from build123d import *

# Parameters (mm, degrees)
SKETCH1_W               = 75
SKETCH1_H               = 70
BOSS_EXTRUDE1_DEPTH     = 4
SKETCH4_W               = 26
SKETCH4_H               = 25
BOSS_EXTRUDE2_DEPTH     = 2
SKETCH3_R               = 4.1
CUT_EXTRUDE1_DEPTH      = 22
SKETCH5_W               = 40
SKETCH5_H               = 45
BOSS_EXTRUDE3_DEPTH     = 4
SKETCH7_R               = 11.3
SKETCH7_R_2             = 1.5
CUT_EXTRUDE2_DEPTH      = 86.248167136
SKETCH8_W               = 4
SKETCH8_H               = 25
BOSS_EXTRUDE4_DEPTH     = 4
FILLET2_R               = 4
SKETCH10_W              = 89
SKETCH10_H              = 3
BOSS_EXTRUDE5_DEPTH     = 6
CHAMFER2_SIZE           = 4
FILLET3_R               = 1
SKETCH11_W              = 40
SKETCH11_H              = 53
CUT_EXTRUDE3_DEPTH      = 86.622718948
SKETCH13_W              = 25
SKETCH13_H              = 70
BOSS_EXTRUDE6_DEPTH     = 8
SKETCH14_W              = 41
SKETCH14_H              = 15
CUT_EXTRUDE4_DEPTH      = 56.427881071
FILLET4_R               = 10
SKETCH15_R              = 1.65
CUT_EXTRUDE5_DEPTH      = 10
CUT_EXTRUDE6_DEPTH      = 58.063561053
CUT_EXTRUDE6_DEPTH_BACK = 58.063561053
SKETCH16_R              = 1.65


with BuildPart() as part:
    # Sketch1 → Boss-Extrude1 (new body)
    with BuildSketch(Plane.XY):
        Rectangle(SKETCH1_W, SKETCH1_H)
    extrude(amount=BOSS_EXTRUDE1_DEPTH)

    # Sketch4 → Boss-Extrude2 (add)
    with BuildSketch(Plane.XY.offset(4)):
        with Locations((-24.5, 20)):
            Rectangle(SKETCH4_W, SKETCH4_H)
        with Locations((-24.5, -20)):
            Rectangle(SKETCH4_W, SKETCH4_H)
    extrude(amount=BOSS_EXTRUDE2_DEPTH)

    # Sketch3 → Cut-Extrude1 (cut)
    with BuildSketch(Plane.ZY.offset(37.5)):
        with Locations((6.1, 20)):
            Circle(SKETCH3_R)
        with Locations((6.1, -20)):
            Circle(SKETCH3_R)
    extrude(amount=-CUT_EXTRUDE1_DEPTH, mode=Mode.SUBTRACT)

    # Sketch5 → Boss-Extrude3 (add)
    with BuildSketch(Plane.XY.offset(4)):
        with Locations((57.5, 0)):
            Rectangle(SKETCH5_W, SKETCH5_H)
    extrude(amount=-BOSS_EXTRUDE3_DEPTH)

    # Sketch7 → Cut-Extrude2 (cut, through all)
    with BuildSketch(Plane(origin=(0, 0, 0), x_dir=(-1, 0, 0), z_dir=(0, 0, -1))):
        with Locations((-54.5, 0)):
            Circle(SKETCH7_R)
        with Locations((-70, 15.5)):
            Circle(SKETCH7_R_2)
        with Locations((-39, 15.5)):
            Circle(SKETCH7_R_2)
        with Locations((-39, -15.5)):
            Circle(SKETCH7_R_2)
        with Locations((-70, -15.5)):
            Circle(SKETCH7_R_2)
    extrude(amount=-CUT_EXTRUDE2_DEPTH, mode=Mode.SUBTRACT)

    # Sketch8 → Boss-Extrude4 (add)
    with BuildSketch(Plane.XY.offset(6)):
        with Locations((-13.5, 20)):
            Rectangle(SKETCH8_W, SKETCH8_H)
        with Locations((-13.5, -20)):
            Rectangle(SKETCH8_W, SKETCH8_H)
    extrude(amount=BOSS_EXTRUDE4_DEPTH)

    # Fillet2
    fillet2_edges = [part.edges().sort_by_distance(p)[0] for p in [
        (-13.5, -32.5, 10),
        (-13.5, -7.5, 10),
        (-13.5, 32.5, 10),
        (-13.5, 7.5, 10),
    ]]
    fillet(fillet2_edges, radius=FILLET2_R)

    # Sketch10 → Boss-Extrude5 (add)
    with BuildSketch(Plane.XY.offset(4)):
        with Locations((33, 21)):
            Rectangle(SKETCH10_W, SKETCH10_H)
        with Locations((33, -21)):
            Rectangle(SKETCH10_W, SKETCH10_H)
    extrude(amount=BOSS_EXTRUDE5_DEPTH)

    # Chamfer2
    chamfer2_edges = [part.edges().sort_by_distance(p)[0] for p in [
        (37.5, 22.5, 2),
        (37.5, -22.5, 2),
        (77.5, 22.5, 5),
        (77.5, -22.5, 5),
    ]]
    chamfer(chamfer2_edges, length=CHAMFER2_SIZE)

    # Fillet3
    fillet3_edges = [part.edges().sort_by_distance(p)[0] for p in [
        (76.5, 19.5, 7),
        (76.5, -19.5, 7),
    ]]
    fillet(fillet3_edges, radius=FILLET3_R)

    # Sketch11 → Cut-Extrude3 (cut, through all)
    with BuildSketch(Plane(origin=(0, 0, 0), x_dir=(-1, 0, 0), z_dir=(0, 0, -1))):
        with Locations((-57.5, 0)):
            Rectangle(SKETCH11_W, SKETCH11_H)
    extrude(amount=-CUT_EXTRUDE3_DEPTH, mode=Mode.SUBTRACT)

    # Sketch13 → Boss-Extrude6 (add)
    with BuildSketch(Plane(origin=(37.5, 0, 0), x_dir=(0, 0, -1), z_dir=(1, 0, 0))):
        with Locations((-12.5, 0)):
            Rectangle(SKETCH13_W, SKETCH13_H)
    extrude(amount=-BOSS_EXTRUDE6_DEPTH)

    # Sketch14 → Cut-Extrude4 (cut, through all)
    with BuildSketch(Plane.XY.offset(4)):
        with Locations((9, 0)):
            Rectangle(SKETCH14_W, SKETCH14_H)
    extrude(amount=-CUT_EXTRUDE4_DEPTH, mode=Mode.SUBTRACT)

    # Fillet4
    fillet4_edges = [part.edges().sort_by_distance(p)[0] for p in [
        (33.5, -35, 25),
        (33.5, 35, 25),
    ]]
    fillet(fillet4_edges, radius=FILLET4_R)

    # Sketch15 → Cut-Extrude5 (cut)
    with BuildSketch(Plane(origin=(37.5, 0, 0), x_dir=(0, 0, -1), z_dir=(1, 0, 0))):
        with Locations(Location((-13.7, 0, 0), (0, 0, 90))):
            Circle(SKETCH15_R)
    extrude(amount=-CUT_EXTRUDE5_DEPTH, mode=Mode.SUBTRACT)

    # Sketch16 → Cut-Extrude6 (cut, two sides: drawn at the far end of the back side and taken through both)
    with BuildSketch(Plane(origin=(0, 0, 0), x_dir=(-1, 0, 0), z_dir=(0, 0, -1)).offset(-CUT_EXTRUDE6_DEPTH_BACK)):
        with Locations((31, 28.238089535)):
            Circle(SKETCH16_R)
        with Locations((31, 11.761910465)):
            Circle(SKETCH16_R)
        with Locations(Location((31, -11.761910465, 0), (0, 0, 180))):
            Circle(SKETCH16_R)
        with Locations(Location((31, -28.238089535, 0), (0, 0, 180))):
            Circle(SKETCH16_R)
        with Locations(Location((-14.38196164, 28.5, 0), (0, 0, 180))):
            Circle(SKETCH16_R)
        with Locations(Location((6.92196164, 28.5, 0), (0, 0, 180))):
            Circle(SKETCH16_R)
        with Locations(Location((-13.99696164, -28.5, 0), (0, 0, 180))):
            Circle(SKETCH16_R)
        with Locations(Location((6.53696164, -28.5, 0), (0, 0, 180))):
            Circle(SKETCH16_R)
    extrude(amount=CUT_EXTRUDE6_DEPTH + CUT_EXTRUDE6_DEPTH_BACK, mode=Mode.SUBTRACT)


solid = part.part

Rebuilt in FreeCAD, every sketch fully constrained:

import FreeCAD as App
import Part
import Sketcher
from FreeCAD import Vector


def edges_at(feature, points):
    """Names of the edges that pass closest to the given points."""
    edges = feature.Shape.Edges
    near = lambda p: min(range(len(edges)), key=lambda i: edges[i].distToShape(Part.Vertex(*p))[0])
    return sorted({f"Edge{near(p) + 1}" for p in points})

doc = App.newDocument("Part")
body = doc.addObject("PartDesign::Body", "Body")

sketch1 = body.newObject("Sketcher::SketchObject", "Sketch")
sketch1.AttachmentSupport = (doc.getObject("XY_Plane"), [""])
sketch1.MapMode = "FlatFace"
sketch1.addGeometry([
    Part.LineSegment(Vector(-37.5, 35, 0), Vector(-37.5, -35, 0)),
    Part.LineSegment(Vector(-37.5, -35, 0), Vector(37.5, -35, 0)),
    Part.LineSegment(Vector(37.5, -35, 0), Vector(37.5, 35, 0)),
    Part.LineSegment(Vector(37.5, 35, 0), Vector(-37.5, 35, 0)),
], False)
sketch1.addConstraint([
    Sketcher.Constraint("Coincident", 0, 2, 1, 1),
    Sketcher.Constraint("Coincident", 1, 2, 2, 1),
    Sketcher.Constraint("Coincident", 2, 2, 3, 1),
    Sketcher.Constraint("Coincident", 3, 2, 0, 1),
    Sketcher.Constraint("Vertical", 0),
    Sketcher.Constraint("Horizontal", 1),
    Sketcher.Constraint("Vertical", 2),
    Sketcher.Constraint("Horizontal", 3),
    Sketcher.Constraint("Symmetric", 0, 2, 2, 2, -1, 1),
    Sketcher.Constraint("DistanceX", 1, 1, 1, 2, 75.0),
    Sketcher.Constraint("DistanceY", 0, 2, 0, 1, 70.0),
])
pad1 = body.newObject("PartDesign::Pad", "Pad")
pad1.Profile = sketch1
pad1.Length = 4

sketch2 = body.newObject("Sketcher::SketchObject", "Sketch001")
sketch2.AttachmentSupport = (doc.getObject("XY_Plane"), [""])
sketch2.MapMode = "FlatFace"
sketch2.AttachmentOffset = App.Placement(Vector(0, 0, 4), App.Rotation())
sketch2.addGeometry([
    Part.LineSegment(Vector(-37.5, 32.5, 0), Vector(-37.5, 7.5, 0)),
    Part.LineSegment(Vector(-37.5, 7.5, 0), Vector(-11.5, 7.5, 0)),
    Part.LineSegment(Vector(-11.5, 7.5, 0), Vector(-11.5, 32.5, 0)),
    Part.LineSegment(Vector(-11.5, 32.5, 0), Vector(-37.5, 32.5, 0)),
    Part.LineSegment(Vector(-37.5, -7.5, 0), Vector(-37.5, -32.5, 0)),
    Part.LineSegment(Vector(-37.5, -32.5, 0), Vector(-11.5, -32.5, 0)),
    Part.LineSegment(Vector(-11.5, -32.5, 0), Vector(-11.5, -7.5, 0)),
    Part.LineSegment(Vector(-11.5, -7.5, 0), Vector(-37.5, -7.5, 0)),
], False)
sketch2.addConstraint([
    Sketcher.Constraint("Coincident", 0, 2, 1, 1),
    Sketcher.Constraint("Coincident", 1, 2, 2, 1),
    Sketcher.Constraint("Coincident", 2, 2, 3, 1),
    Sketcher.Constraint("Coincident", 3, 2, 0, 1),
    Sketcher.Constraint("Coincident", 4, 2, 5, 1),
    Sketcher.Constraint("Coincident", 5, 2, 6, 1),
    Sketcher.Constraint("Coincident", 6, 2, 7, 1),
    Sketcher.Constraint("Coincident", 7, 2, 4, 1),
    Sketcher.Constraint("Vertical", 0),
    Sketcher.Constraint("Horizontal", 1),
    Sketcher.Constraint("Vertical", 2),
    Sketcher.Constraint("Horizontal", 3),
    Sketcher.Constraint("Vertical", 4),
    Sketcher.Constraint("Horizontal", 5),
    Sketcher.Constraint("Vertical", 6),
    Sketcher.Constraint("Horizontal", 7),
    Sketcher.Constraint("Symmetric", 3, 2, 4, 2, -1),
    Sketcher.Constraint("Symmetric", 1, 2, 6, 2, -1),
    Sketcher.Constraint("DistanceX", 1, 1, 1, 2, 26.0),
    Sketcher.Constraint("DistanceY", 0, 2, 0, 1, 25.0),
    Sketcher.Constraint("DistanceY", 4, 2, 0, 2, 40.0),
    Sketcher.Constraint("DistanceX", 0, 2, -1, 1, 37.5),
])
pad2 = body.newObject("PartDesign::Pad", "Pad001")
pad2.Profile = sketch2
pad2.Length = 2

sketch3 = body.newObject("Sketcher::SketchObject", "Sketch002")
sketch3.AttachmentSupport = (doc.getObject("YZ_Plane"), [""])
sketch3.MapMode = "FlatFace"
sketch3.AttachmentOffset = App.Placement(Vector(0, 0, -37.5), App.Rotation())
sketch3.addGeometry([
    Part.Circle(Vector(20, 6.1, 0), Vector(0, 0, 1), 4.1),
    Part.Circle(Vector(-20, 6.1, 0), Vector(0, 0, 1), 4.1),
], False)
sketch3.addConstraint([
    Sketcher.Constraint("Equal", 0, 1),
    Sketcher.Constraint("Symmetric", 0, 3, 1, 3, -2),
    Sketcher.Constraint("Diameter", 0, 8.2),
    Sketcher.Constraint("DistanceX", -1, 1, 0, 3, 20.0),
    Sketcher.Constraint("DistanceY", -1, 1, 0, 3, 6.1),
])
pocket1 = body.newObject("PartDesign::Pocket", "Pocket")
pocket1.Profile = sketch3
pocket1.Length = 22
pocket1.Reversed = True

sketch4 = body.newObject("Sketcher::SketchObject", "Sketch003")
sketch4.AttachmentSupport = (doc.getObject("XY_Plane"), [""])
sketch4.MapMode = "FlatFace"
sketch4.AttachmentOffset = App.Placement(Vector(0, 0, 4), App.Rotation())
sketch4.addGeometry([
    Part.LineSegment(Vector(37.5, 22.5, 0), Vector(37.5, -22.5, 0)),
    Part.LineSegment(Vector(37.5, -22.5, 0), Vector(77.5, -22.5, 0)),
    Part.LineSegment(Vector(77.5, -22.5, 0), Vector(77.5, 22.5, 0)),
    Part.LineSegment(Vector(77.5, 22.5, 0), Vector(37.5, 22.5, 0)),
], False)
sketch4.addConstraint([
    Sketcher.Constraint("Coincident", 0, 2, 1, 1),
    Sketcher.Constraint("Coincident", 1, 2, 2, 1),
    Sketcher.Constraint("Coincident", 2, 2, 3, 1),
    Sketcher.Constraint("Coincident", 3, 2, 0, 1),
    Sketcher.Constraint("Vertical", 0),
    Sketcher.Constraint("Horizontal", 1),
    Sketcher.Constraint("Vertical", 2),
    Sketcher.Constraint("Horizontal", 3),
    Sketcher.Constraint("DistanceX", 1, 1, 1, 2, 40.0),
    Sketcher.Constraint("DistanceY", 0, 2, 0, 1, 45.0),
    Sketcher.Constraint("DistanceX", -1, 1, 0, 2, 37.5),
    Sketcher.Constraint("DistanceY", 0, 2, -1, 1, 22.5),
])
pad3 = body.newObject("PartDesign::Pad", "Pad002")
pad3.Profile = sketch4
pad3.Length = 4
pad3.Reversed = True

sketch5 = body.newObject("Sketcher::SketchObject", "Sketch004")
sketch5.AttachmentSupport = (doc.getObject("XY_Plane"), [""])
sketch5.MapMode = "FlatFace"
sketch5.addGeometry([
    Part.Circle(Vector(54.5, 0, 0), Vector(0, 0, 1), 11.3),
    Part.Circle(Vector(70, 15.5, 0), Vector(0, 0, 1), 1.5),
    Part.Circle(Vector(39, 15.5, 0), Vector(0, 0, 1), 1.5),
    Part.Circle(Vector(39, -15.5, 0), Vector(0, 0, 1), 1.5),
    Part.Circle(Vector(70, -15.5, 0), Vector(0, 0, 1), 1.5),
], False)
sketch5.addConstraint([
    Sketcher.Constraint("Equal", 1, 2),
    Sketcher.Constraint("Equal", 2, 3),
    Sketcher.Constraint("Equal", 3, 4),
    Sketcher.Constraint("Symmetric", 2, 3, 3, 3, -1),
    Sketcher.Constraint("Symmetric", 1, 3, 4, 3, -1),
    Sketcher.Constraint("PointOnObject", 0, 3, -1),
    Sketcher.Constraint("Horizontal", 1, 3, 2, 3),
    Sketcher.Constraint("Diameter", 1, 3.0),
    Sketcher.Constraint("Diameter", 0, 22.6),
    Sketcher.Constraint("DistanceX", -1, 1, 1, 3, 70.0),
    Sketcher.Constraint("DistanceX", -1, 1, 2, 3, 39.0),
    Sketcher.Constraint("DistanceY", 3, 3, 2, 3, 31.0),
    Sketcher.Constraint("DistanceX", -1, 1, 0, 3, 54.5),
])
pocket2 = body.newObject("PartDesign::Pocket", "Pocket001")
pocket2.Profile = sketch5
pocket2.Type = "ThroughAll"
pocket2.Reversed = True

sketch6 = body.newObject("Sketcher::SketchObject", "Sketch005")
sketch6.AttachmentSupport = (doc.getObject("XY_Plane"), [""])
sketch6.MapMode = "FlatFace"
sketch6.AttachmentOffset = App.Placement(Vector(0, 0, 6), App.Rotation())
sketch6.addGeometry([
    Part.LineSegment(Vector(-15.5, 32.5, 0), Vector(-15.5, 7.5, 0)),
    Part.LineSegment(Vector(-15.5, 7.5, 0), Vector(-11.5, 7.5, 0)),
    Part.LineSegment(Vector(-11.5, 7.5, 0), Vector(-11.5, 32.5, 0)),
    Part.LineSegment(Vector(-11.5, 32.5, 0), Vector(-15.5, 32.5, 0)),
    Part.LineSegment(Vector(-15.5, -7.5, 0), Vector(-15.5, -32.5, 0)),
    Part.LineSegment(Vector(-15.5, -32.5, 0), Vector(-11.5, -32.5, 0)),
    Part.LineSegment(Vector(-11.5, -32.5, 0), Vector(-11.5, -7.5, 0)),
    Part.LineSegment(Vector(-11.5, -7.5, 0), Vector(-15.5, -7.5, 0)),
], False)
sketch6.addConstraint([
    Sketcher.Constraint("Coincident", 0, 2, 1, 1),
    Sketcher.Constraint("Coincident", 1, 2, 2, 1),
    Sketcher.Constraint("Coincident", 2, 2, 3, 1),
    Sketcher.Constraint("Coincident", 3, 2, 0, 1),
    Sketcher.Constraint("Coincident", 4, 2, 5, 1),
    Sketcher.Constraint("Coincident", 5, 2, 6, 1),
    Sketcher.Constraint("Coincident", 6, 2, 7, 1),
    Sketcher.Constraint("Coincident", 7, 2, 4, 1),
    Sketcher.Constraint("Vertical", 0),
    Sketcher.Constraint("Horizontal", 1),
    Sketcher.Constraint("Vertical", 2),
    Sketcher.Constraint("Horizontal", 3),
    Sketcher.Constraint("Vertical", 4),
    Sketcher.Constraint("Horizontal", 5),
    Sketcher.Constraint("Vertical", 6),
    Sketcher.Constraint("Horizontal", 7),
    Sketcher.Constraint("Symmetric", 3, 2, 4, 2, -1),
    Sketcher.Constraint("Symmetric", 1, 2, 6, 2, -1),
    Sketcher.Constraint("DistanceX", 1, 1, 1, 2, 4.0),
    Sketcher.Constraint("DistanceY", 0, 2, 0, 1, 25.0),
    Sketcher.Constraint("DistanceY", 4, 2, 0, 2, 40.0),
    Sketcher.Constraint("DistanceX", 0, 2, -1, 1, 15.5),
])
pad4 = body.newObject("PartDesign::Pad", "Pad003")
pad4.Profile = sketch6
pad4.Length = 4
doc.recompute()

fillet = body.newObject("PartDesign::Fillet", "Fillet")
fillet.Base = (pad4, edges_at(pad4, [
    (-13.5, -32.5, 10),
    (-13.5, -7.5, 10),
    (-13.5, 32.5, 10),
    (-13.5, 7.5, 10),
]))
fillet.Radius = 4

sketch7 = body.newObject("Sketcher::SketchObject", "Sketch006")
sketch7.AttachmentSupport = (doc.getObject("XY_Plane"), [""])
sketch7.MapMode = "FlatFace"
sketch7.AttachmentOffset = App.Placement(Vector(0, 0, 4), App.Rotation())
sketch7.addGeometry([
    Part.LineSegment(Vector(-11.5, 22.5, 0), Vector(-11.5, 19.5, 0)),
    Part.LineSegment(Vector(-11.5, 19.5, 0), Vector(77.5, 19.5, 0)),
    Part.LineSegment(Vector(77.5, 19.5, 0), Vector(77.5, 22.5, 0)),
    Part.LineSegment(Vector(77.5, 22.5, 0), Vector(-11.5, 22.5, 0)),
    Part.LineSegment(Vector(-11.5, -19.5, 0), Vector(-11.5, -22.5, 0)),
    Part.LineSegment(Vector(-11.5, -22.5, 0), Vector(77.5, -22.5, 0)),
    Part.LineSegment(Vector(77.5, -22.5, 0), Vector(77.5, -19.5, 0)),
    Part.LineSegment(Vector(77.5, -19.5, 0), Vector(-11.5, -19.5, 0)),
], False)
sketch7.addConstraint([
    Sketcher.Constraint("Coincident", 0, 2, 1, 1),
    Sketcher.Constraint("Coincident", 1, 2, 2, 1),
    Sketcher.Constraint("Coincident", 2, 2, 3, 1),
    Sketcher.Constraint("Coincident", 3, 2, 0, 1),
    Sketcher.Constraint("Coincident", 4, 2, 5, 1),
    Sketcher.Constraint("Coincident", 5, 2, 6, 1),
    Sketcher.Constraint("Coincident", 6, 2, 7, 1),
    Sketcher.Constraint("Coincident", 7, 2, 4, 1),
    Sketcher.Constraint("Vertical", 0),
    Sketcher.Constraint("Horizontal", 1),
    Sketcher.Constraint("Vertical", 2),
    Sketcher.Constraint("Horizontal", 3),
    Sketcher.Constraint("Vertical", 4),
    Sketcher.Constraint("Horizontal", 5),
    Sketcher.Constraint("Vertical", 6),
    Sketcher.Constraint("Horizontal", 7),
    Sketcher.Constraint("Symmetric", 3, 2, 4, 2, -1),
    Sketcher.Constraint("Symmetric", 1, 2, 6, 2, -1),
    Sketcher.Constraint("DistanceX", 1, 1, 1, 2, 89.0),
    Sketcher.Constraint("DistanceY", 0, 2, 0, 1, 3.0),
    Sketcher.Constraint("DistanceY", 4, 2, 0, 2, 42.0),
    Sketcher.Constraint("DistanceX", 0, 2, -1, 1, 11.5),
])
pad5 = body.newObject("PartDesign::Pad", "Pad004")
pad5.Profile = sketch7
pad5.Length = 6
doc.recompute()

chamfer = body.newObject("PartDesign::Chamfer", "Chamfer")
chamfer.Base = (pad5, edges_at(pad5, [
    (37.5, 22.5, 2),
    (37.5, -22.5, 2),
    (77.5, 22.5, 5),
    (77.5, -22.5, 5),
]))
chamfer.Size = 4
doc.recompute()

fillet2 = body.newObject("PartDesign::Fillet", "Fillet001")
fillet2.Base = (chamfer, edges_at(chamfer, [(76.5, 19.5, 7), (76.5, -19.5, 7)]))
fillet2.Radius = 1

sketch8 = body.newObject("Sketcher::SketchObject", "Sketch007")
sketch8.AttachmentSupport = (doc.getObject("XY_Plane"), [""])
sketch8.MapMode = "FlatFace"
sketch8.addGeometry([
    Part.LineSegment(Vector(77.5, 26.5, 0), Vector(77.5, -26.5, 0)),
    Part.LineSegment(Vector(77.5, -26.5, 0), Vector(37.5, -26.5, 0)),
    Part.LineSegment(Vector(37.5, -26.5, 0), Vector(37.5, 26.5, 0)),
    Part.LineSegment(Vector(37.5, 26.5, 0), Vector(77.5, 26.5, 0)),
], False)
sketch8.addConstraint([
    Sketcher.Constraint("Coincident", 0, 2, 1, 1),
    Sketcher.Constraint("Coincident", 1, 2, 2, 1),
    Sketcher.Constraint("Coincident", 2, 2, 3, 1),
    Sketcher.Constraint("Coincident", 3, 2, 0, 1),
    Sketcher.Constraint("Vertical", 0),
    Sketcher.Constraint("Horizontal", 1),
    Sketcher.Constraint("Vertical", 2),
    Sketcher.Constraint("Horizontal", 3),
    Sketcher.Constraint("DistanceX", 1, 2, 1, 1, 40.0),
    Sketcher.Constraint("DistanceY", 0, 2, 0, 1, 53.0),
    Sketcher.Constraint("DistanceX", -1, 1, 0, 2, 77.5),
    Sketcher.Constraint("DistanceY", 0, 2, -1, 1, 26.5),
])
pocket3 = body.newObject("PartDesign::Pocket", "Pocket002")
pocket3.Profile = sketch8
pocket3.Type = "ThroughAll"
pocket3.Reversed = True

sketch9 = body.newObject("Sketcher::SketchObject", "Sketch008")
sketch9.AttachmentSupport = (doc.getObject("YZ_Plane"), [""])
sketch9.MapMode = "FlatFace"
sketch9.AttachmentOffset = App.Placement(Vector(0, 0, 37.5), App.Rotation())
sketch9.addGeometry([
    Part.LineSegment(Vector(35, 25, 0), Vector(-35, 25, 0)),
    Part.LineSegment(Vector(-35, 25, 0), Vector(-35, 0, 0)),
    Part.LineSegment(Vector(-35, 0, 0), Vector(35, 0, 0)),
    Part.LineSegment(Vector(35, 0, 0), Vector(35, 25, 0)),
], False)
sketch9.addConstraint([
    Sketcher.Constraint("Coincident", 0, 2, 1, 1),
    Sketcher.Constraint("Coincident", 1, 2, 2, 1),
    Sketcher.Constraint("Coincident", 2, 2, 3, 1),
    Sketcher.Constraint("Coincident", 3, 2, 0, 1),
    Sketcher.Constraint("Horizontal", 0),
    Sketcher.Constraint("Vertical", 1),
    Sketcher.Constraint("Horizontal", 2),
    Sketcher.Constraint("Vertical", 3),
    Sketcher.Constraint("Symmetric", 1, 2, 2, 2, -1, 1),
    Sketcher.Constraint("DistanceX", 0, 2, 0, 1, 70.0),
    Sketcher.Constraint("DistanceY", 1, 2, 1, 1, 25.0),
])
pad6 = body.newObject("PartDesign::Pad", "Pad005")
pad6.Profile = sketch9
pad6.Length = 8
pad6.Reversed = True

sketch10 = body.newObject("Sketcher::SketchObject", "Sketch009")
sketch10.AttachmentSupport = (doc.getObject("XY_Plane"), [""])
sketch10.MapMode = "FlatFace"
sketch10.AttachmentOffset = App.Placement(Vector(0, 0, 4), App.Rotation())
sketch10.addGeometry([
    Part.LineSegment(Vector(-11.5, 7.5, 0), Vector(-11.5, -7.5, 0)),
    Part.LineSegment(Vector(-11.5, -7.5, 0), Vector(29.5, -7.5, 0)),
    Part.LineSegment(Vector(29.5, -7.5, 0), Vector(29.5, 7.5, 0)),
    Part.LineSegment(Vector(29.5, 7.5, 0), Vector(-11.5, 7.5, 0)),
], False)
sketch10.addConstraint([
    Sketcher.Constraint("Coincident", 0, 2, 1, 1),
    Sketcher.Constraint("Coincident", 1, 2, 2, 1),
    Sketcher.Constraint("Coincident", 2, 2, 3, 1),
    Sketcher.Constraint("Coincident", 3, 2, 0, 1),
    Sketcher.Constraint("Vertical", 0),
    Sketcher.Constraint("Horizontal", 1),
    Sketcher.Constraint("Vertical", 2),
    Sketcher.Constraint("Horizontal", 3),
    Sketcher.Constraint("DistanceX", 1, 1, 1, 2, 41.0),
    Sketcher.Constraint("DistanceY", 0, 2, 0, 1, 15.0),
    Sketcher.Constraint("DistanceX", 0, 2, -1, 1, 11.5),
    Sketcher.Constraint("DistanceY", 0, 2, -1, 1, 7.5),
])
pocket4 = body.newObject("PartDesign::Pocket", "Pocket003")
pocket4.Profile = sketch10
pocket4.Type = "ThroughAll"
doc.recompute()

fillet3 = body.newObject("PartDesign::Fillet", "Fillet002")
fillet3.Base = (pocket4, edges_at(pocket4, [(33.5, -35, 25), (33.5, 35, 25)]))
fillet3.Radius = 10

sketch11 = body.newObject("Sketcher::SketchObject", "Sketch010")
sketch11.AttachmentSupport = (doc.getObject("YZ_Plane"), [""])
sketch11.MapMode = "FlatFace"
sketch11.AttachmentOffset = App.Placement(Vector(0, 0, 37.5), App.Rotation())
sketch11.addGeometry(Part.Circle(Vector(0, 13.7, 0), Vector(0, 0, 1), 1.65), False)
sketch11.addConstraint([
    Sketcher.Constraint("PointOnObject", 0, 3, -2),
    Sketcher.Constraint("Diameter", 0, 3.3),
    Sketcher.Constraint("DistanceY", -1, 1, 0, 3, 13.7),
])
pocket5 = body.newObject("PartDesign::Pocket", "Pocket004")
pocket5.Profile = sketch11
pocket5.Length = 10

sketch12 = body.newObject("Sketcher::SketchObject", "Sketch011")
sketch12.AttachmentSupport = (doc.getObject("XY_Plane"), [""])
sketch12.MapMode = "FlatFace"
sketch12.addGeometry([
    Part.Circle(Vector(-31, 28.23809, 0), Vector(0, 0, 1), 1.65),
    Part.Circle(Vector(-31, 11.76191, 0), Vector(0, 0, 1), 1.65),
    Part.Circle(Vector(-31, -11.76191, 0), Vector(0, 0, 1), 1.65),
    Part.Circle(Vector(-31, -28.23809, 0), Vector(0, 0, 1), 1.65),
    Part.Circle(Vector(14.381962, 28.5, 0), Vector(0, 0, 1), 1.65),
    Part.Circle(Vector(-6.921962, 28.5, 0), Vector(0, 0, 1), 1.65),
    Part.Circle(Vector(13.996962, -28.5, 0), Vector(0, 0, 1), 1.65),
    Part.Circle(Vector(-6.536962, -28.5, 0), Vector(0, 0, 1), 1.65),
], False)
sketch12.addConstraint([
    Sketcher.Constraint("Equal", 0, 1),
    Sketcher.Constraint("Equal", 1, 2),
    Sketcher.Constraint("Equal", 2, 3),
    Sketcher.Constraint("Equal", 3, 4),
    Sketcher.Constraint("Equal", 4, 5),
    Sketcher.Constraint("Equal", 5, 6),
    Sketcher.Constraint("Equal", 6, 7),
    Sketcher.Constraint("Symmetric", 1, 3, 2, 3, -1),
    Sketcher.Constraint("Symmetric", 0, 3, 3, 3, -1),
    Sketcher.Constraint("Horizontal", 4, 3, 5, 3),
    Sketcher.Constraint("Horizontal", 6, 3, 7, 3),
    Sketcher.Constraint("Vertical", 0, 3, 1, 3),
    Sketcher.Constraint("Diameter", 0, 3.3),
    Sketcher.Constraint("DistanceX", 0, 3, -1, 1, 31.0),
    Sketcher.Constraint("DistanceY", 2, 3, 0, 3, 40.0),
    Sketcher.Constraint("DistanceY", 6, 3, 4, 3, 57.0),
    Sketcher.Constraint("DistanceY", -1, 1, 4, 3, 28.5),
    Sketcher.Constraint("DistanceX", 6, 3, 4, 3, 0.385),
    Sketcher.Constraint("DistanceX", 5, 3, 7, 3, 0.385),
    Sketcher.Constraint("DistanceY", -1, 1, 0, 3, 28.23809),
    Sketcher.Constraint("DistanceX", -1, 1, 4, 3, 14.381962),
    Sketcher.Constraint("DistanceX", 5, 3, -1, 1, 6.921962),
])
pocket6 = body.newObject("PartDesign::Pocket", "Pocket005")
pocket6.Profile = sketch12
pocket6.Type = "ThroughAll"
pocket6.Midplane = True

doc.recompute()
